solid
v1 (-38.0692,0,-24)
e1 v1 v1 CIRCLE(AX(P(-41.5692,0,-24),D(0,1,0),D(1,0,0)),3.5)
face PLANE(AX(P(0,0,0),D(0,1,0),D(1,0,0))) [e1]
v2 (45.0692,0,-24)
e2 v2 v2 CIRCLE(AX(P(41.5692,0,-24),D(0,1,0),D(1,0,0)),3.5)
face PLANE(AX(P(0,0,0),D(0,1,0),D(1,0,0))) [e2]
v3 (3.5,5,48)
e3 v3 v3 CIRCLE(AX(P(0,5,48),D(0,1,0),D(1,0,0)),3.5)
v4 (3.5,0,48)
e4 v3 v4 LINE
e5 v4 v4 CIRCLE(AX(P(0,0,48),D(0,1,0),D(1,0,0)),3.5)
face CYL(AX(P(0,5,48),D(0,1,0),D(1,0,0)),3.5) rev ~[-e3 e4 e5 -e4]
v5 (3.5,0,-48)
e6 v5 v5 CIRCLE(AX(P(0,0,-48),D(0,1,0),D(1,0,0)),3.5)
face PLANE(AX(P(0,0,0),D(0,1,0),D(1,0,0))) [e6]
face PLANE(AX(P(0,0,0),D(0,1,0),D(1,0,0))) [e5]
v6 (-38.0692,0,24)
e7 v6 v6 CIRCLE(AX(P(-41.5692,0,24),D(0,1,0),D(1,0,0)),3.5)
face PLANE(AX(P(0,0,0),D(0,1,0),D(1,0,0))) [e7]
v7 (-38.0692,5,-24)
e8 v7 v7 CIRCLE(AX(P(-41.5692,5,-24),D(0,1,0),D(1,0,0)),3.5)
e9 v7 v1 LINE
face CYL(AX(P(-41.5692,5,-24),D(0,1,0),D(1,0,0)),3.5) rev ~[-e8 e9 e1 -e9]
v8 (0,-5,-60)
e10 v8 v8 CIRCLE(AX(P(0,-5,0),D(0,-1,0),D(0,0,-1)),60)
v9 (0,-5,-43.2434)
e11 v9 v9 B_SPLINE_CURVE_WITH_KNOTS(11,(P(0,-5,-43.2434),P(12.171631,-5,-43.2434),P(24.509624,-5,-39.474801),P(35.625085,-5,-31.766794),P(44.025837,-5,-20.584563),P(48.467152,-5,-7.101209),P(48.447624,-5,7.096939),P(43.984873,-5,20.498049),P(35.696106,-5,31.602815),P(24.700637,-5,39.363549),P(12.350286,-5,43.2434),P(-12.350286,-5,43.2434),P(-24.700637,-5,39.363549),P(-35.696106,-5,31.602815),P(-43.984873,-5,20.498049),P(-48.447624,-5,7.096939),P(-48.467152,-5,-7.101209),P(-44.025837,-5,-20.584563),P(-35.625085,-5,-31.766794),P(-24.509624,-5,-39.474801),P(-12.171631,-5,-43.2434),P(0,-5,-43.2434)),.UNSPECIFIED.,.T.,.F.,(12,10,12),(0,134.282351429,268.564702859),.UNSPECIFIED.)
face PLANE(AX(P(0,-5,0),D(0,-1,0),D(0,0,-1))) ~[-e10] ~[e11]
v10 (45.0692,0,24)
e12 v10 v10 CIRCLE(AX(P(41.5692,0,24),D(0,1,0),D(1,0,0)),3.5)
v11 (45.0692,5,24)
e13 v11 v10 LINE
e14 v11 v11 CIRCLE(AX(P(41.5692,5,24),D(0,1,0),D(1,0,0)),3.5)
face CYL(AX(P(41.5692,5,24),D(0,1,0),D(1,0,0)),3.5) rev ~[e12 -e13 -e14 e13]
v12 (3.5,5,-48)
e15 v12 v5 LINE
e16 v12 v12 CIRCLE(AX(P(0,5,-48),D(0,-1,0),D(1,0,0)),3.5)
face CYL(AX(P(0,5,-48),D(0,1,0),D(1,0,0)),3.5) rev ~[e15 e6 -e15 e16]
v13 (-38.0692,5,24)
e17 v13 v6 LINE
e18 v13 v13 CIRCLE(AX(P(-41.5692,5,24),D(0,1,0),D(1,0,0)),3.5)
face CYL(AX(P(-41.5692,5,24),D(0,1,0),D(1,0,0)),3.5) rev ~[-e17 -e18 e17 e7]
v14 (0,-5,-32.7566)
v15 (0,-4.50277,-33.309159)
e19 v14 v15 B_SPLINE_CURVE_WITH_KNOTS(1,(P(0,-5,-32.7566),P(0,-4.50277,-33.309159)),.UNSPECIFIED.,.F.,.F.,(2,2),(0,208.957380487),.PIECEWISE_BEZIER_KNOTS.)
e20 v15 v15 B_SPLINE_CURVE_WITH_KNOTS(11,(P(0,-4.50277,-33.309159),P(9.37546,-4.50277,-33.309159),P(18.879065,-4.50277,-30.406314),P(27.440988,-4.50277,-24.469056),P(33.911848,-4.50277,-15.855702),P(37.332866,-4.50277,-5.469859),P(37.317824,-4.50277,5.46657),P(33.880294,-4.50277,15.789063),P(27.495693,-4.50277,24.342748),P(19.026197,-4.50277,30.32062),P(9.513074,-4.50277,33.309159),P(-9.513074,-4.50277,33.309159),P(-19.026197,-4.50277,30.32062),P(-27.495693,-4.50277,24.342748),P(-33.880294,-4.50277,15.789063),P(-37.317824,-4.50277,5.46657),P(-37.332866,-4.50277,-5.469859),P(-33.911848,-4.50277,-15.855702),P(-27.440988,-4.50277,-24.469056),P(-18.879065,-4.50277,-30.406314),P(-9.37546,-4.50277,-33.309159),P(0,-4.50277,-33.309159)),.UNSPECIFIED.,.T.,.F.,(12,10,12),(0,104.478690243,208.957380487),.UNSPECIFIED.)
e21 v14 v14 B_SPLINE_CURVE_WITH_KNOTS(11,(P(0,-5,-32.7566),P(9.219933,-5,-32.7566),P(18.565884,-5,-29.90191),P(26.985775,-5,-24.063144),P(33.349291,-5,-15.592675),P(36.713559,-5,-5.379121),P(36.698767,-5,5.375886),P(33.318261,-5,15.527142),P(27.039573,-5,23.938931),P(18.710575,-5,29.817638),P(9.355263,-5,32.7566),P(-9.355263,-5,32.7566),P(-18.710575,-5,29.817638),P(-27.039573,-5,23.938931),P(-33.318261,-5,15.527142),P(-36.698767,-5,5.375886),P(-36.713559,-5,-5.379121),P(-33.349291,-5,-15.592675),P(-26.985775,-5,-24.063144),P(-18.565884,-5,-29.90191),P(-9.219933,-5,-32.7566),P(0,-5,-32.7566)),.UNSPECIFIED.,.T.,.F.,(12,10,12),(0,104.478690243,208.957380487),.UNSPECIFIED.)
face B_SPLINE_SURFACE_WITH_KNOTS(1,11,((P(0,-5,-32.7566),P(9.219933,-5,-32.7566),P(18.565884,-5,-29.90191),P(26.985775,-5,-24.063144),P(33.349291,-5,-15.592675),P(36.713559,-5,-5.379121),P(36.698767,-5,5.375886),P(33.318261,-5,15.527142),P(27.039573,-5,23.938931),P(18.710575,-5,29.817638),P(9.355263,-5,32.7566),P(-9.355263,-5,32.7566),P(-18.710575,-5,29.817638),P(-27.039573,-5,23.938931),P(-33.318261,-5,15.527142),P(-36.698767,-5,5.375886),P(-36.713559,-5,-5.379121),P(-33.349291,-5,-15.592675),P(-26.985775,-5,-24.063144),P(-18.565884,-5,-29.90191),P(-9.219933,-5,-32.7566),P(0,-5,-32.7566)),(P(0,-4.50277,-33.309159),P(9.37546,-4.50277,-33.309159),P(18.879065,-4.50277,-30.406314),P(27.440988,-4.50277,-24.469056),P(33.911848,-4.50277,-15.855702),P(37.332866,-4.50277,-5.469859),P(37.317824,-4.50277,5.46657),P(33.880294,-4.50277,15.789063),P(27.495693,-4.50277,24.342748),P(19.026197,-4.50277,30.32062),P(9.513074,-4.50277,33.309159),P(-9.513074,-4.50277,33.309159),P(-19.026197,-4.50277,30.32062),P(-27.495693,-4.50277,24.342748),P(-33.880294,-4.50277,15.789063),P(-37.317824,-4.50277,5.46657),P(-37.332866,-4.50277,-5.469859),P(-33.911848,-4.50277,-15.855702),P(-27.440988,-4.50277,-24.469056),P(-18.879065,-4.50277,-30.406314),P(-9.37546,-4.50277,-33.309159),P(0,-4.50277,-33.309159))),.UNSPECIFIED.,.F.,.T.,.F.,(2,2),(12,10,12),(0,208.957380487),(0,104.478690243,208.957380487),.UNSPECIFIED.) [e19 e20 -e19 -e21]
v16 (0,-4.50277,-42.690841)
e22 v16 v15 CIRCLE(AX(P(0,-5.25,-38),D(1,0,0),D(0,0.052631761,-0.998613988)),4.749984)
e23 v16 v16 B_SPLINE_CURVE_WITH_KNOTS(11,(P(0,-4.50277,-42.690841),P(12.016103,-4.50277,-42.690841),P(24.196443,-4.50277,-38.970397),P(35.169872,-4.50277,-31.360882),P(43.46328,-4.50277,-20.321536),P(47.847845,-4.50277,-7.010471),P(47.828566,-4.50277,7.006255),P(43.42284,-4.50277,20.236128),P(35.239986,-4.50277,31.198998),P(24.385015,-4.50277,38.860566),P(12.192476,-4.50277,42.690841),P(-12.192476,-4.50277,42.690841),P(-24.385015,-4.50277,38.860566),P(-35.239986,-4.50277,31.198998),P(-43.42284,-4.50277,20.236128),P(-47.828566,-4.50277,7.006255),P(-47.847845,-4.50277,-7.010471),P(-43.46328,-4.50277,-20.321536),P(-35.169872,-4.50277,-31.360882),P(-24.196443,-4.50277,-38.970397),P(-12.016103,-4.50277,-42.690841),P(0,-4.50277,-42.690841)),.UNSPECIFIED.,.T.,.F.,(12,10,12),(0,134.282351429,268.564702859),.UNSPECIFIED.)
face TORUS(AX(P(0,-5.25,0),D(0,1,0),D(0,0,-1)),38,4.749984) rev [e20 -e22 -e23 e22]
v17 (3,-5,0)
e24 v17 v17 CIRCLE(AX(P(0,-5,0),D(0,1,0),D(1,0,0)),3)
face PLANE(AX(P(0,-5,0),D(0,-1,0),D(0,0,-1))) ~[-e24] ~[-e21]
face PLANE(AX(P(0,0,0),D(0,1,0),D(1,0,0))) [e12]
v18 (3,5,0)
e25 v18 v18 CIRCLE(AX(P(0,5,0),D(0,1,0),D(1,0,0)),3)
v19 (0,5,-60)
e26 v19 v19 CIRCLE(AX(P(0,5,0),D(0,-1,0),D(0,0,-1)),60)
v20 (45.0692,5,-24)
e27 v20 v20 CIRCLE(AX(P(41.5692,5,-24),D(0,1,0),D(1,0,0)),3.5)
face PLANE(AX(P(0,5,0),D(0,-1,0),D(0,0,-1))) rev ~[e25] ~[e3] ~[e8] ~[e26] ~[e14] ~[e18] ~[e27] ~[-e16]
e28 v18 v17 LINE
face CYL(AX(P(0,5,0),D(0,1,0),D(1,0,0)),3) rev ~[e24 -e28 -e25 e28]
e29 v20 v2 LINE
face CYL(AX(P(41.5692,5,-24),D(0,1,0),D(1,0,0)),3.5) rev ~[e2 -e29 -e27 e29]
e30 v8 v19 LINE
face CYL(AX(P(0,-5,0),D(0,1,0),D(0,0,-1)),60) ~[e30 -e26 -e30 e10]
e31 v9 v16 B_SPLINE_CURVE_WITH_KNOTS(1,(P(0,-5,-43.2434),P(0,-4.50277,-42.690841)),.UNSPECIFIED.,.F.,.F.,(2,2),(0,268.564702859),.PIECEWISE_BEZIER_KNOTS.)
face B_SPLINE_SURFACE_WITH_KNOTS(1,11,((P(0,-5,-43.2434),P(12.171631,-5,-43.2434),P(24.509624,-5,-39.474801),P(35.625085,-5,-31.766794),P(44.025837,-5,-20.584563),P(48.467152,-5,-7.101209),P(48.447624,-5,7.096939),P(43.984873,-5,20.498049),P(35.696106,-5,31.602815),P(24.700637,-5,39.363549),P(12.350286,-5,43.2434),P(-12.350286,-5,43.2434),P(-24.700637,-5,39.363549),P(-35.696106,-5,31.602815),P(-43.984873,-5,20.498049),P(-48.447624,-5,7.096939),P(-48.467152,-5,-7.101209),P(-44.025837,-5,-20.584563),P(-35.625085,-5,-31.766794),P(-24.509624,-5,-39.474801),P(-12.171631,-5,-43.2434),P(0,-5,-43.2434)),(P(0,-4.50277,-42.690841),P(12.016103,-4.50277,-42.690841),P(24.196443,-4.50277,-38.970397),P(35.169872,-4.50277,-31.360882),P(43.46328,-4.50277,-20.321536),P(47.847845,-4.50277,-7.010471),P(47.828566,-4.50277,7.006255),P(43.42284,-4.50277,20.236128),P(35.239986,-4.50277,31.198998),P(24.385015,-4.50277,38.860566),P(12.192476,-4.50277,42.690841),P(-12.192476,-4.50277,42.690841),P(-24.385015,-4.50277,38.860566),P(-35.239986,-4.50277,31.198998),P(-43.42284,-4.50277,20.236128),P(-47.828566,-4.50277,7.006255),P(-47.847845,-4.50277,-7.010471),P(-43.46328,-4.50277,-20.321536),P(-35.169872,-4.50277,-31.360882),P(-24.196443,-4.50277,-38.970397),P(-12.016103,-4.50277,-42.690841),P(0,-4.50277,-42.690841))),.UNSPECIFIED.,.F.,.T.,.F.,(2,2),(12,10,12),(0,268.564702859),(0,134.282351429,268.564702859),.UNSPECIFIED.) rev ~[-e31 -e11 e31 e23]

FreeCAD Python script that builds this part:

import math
import FreeCAD as App
import Part
import Sketcher
Q = App.Units.Quantity


def edges_at(feature, points):
    """Names of the edges that pass closest to the given points."""
    edges = feature.Shape.Edges
    near = lambda p: min(range(len(edges)), key=lambda i: edges[i].distToShape(Part.Vertex(*p))[0])
    return sorted({f"Edge{near(p) + 1}" for p in points})

doc = App.newDocument("Part")
params = doc.addObject("Spreadsheet::Sheet", "Params")
for row, (alias, value) in enumerate([
    ("sketch1_width", "10 mm"),
    ("sketch1_height", "60 mm"),
    ("sketch1_radius", "4.75 mm"),
    ("revolution_angle", "360 deg"),
    ("sketch2_diameter", "7 mm"),
    ("pocket1_length", "5 mm"),
    ("sketch3_diameter", "6 mm"),
    ("pocket2_length", "10 mm"),
    ("chamfer_size", "0.5 mm"),
], start=1):
    params.set(f"A{row}", alias)
    params.set(f"B{row}", "=" + value)
    params.setAlias(f"B{row}", alias)

body = doc.addObject("PartDesign::Body", "Body")

sketch1 = body.newObject("Sketcher::SketchObject", "Sketch")
sketch1.AttachmentSupport = (doc.getObject("YZ_Plane"), [""])
sketch1.MapMode = "FlatFace"
sketch1.addGeometry(Part.LineSegment(App.Vector(5, -60, 0), App.Vector(5, 0, 0)), False)
sketch1.addGeometry(Part.LineSegment(App.Vector(5, 0, 0), App.Vector(-5, 0, 0)), False)
sketch1.addGeometry(Part.LineSegment(App.Vector(-5, 0, 0), App.Vector(-5, -33.2566, 0)), False)
sketch1.addGeometry(Part.ArcOfCircle(Part.Circle(App.Vector(-5.25, -38, 0), App.Vector(0, 0, 1), 4.749984), math.radians(-86.983028), math.radians(86.983028)), False)
sketch1.addGeometry(Part.LineSegment(App.Vector(-5, -42.7434, 0), App.Vector(-5, -60, 0)), False)
sketch1.addGeometry(Part.LineSegment(App.Vector(-5, -60, 0), App.Vector(5, -60, 0)), False)
sketch1.addConstraint(Sketcher.Constraint("Coincident", 0, 2, 1, 1))
sketch1.addConstraint(Sketcher.Constraint("Coincident", 1, 2, 2, 1))
sketch1.addConstraint(Sketcher.Constraint("Coincident", 2, 2, 3, 2))
sketch1.addConstraint(Sketcher.Constraint("Coincident", 3, 1, 4, 1))
sketch1.addConstraint(Sketcher.Constraint("Coincident", 4, 2, 5, 1))
sketch1.addConstraint(Sketcher.Constraint("Coincident", 5, 2, 0, 1))
sketch1.addConstraint(Sketcher.Constraint("Vertical", 0))
sketch1.addConstraint(Sketcher.Constraint("Horizontal", 1))
sketch1.addConstraint(Sketcher.Constraint("Vertical", 2))
sketch1.addConstraint(Sketcher.Constraint("Vertical", 4))
sketch1.addConstraint(Sketcher.Constraint("Horizontal", 5))
sketch1.addConstraint(Sketcher.Constraint("Symmetric", 0, 2, 1, 2, -1, 1))
sketch1.addConstraint(Sketcher.Constraint("Vertical", 2, 2, 3, 1))
sketch1.addConstraint(Sketcher.Constraint("DistanceX", 1, 2, 1, 1, Q("10 mm")))
sketch1.addConstraint(Sketcher.Constraint("DistanceY", 0, 1, 0, 2, Q("60 mm")))
sketch1.addConstraint(Sketcher.Constraint("Radius", 3, Q("4.75 mm")))
sketch1.addConstraint(Sketcher.Constraint("DistanceY", 3, 3, -1, 1, Q("38 mm")))
sketch1.addConstraint(Sketcher.Constraint("DistanceX", 3, 3, -1, 1, Q("5.25 mm")))
sketch1.setExpression("Constraints[13]", "Params.sketch1_width")
sketch1.setExpression("Constraints[14]", "Params.sketch1_height")
sketch1.setExpression("Constraints[15]", "Params.sketch1_radius")
revolution = body.newObject("PartDesign::Revolution", "Revolution")
revolution.Profile = sketch1
revolution.ReferenceAxis = (sketch1, ["H_Axis"])
revolution.setExpression("Angle", "Params.revolution_angle")

sketch2 = body.newObject("Sketcher::SketchObject", "Sketch001")
sketch2.AttachmentSupport = (doc.getObject("XZ_Plane"), [""])
sketch2.MapMode = "FlatFace"
sketch2.AttachmentOffset = App.Placement(App.Vector(0, 0, -5), App.Rotation())
sketch2.addGeometry(Part.Circle(App.Vector(0, -48, 0), App.Vector(0, 0, 1), 3.5), False)
sketch2.addGeometry(Part.Circle(App.Vector(-41.5692, -24, 0), App.Vector(0, 0, 1), 3.5), False)
sketch2.addGeometry(Part.Circle(App.Vector(-41.5692, 24, 0), App.Vector(0, 0, 1), 3.5), False)
sketch2.addGeometry(Part.Circle(App.Vector(0, 48, 0), App.Vector(0, 0, 1), 3.5), False)
sketch2.addGeometry(Part.Circle(App.Vector(41.5692, 24, 0), App.Vector(0, 0, 1), 3.5), False)
sketch2.addGeometry(Part.Circle(App.Vector(41.5692, -24, 0), App.Vector(0, 0, 1), 3.5), False)
sketch2.addConstraint(Sketcher.Constraint("Equal", 0, 1))
sketch2.addConstraint(Sketcher.Constraint("Equal", 1, 2))
sketch2.addConstraint(Sketcher.Constraint("Equal", 2, 3))
sketch2.addConstraint(Sketcher.Constraint("Equal", 3, 4))
sketch2.addConstraint(Sketcher.Constraint("Equal", 4, 5))
sketch2.addConstraint(Sketcher.Constraint("Symmetric", 0, 3, 3, 3, -1, 1))
sketch2.addConstraint(Sketcher.Constraint("Symmetric", 1, 3, 4, 3, -1, 1))
sketch2.addConstraint(Sketcher.Constraint("Symmetric", 2, 3, 5, 3, -1, 1))
sketch2.addConstraint(Sketcher.Constraint("Symmetric", 2, 3, 4, 3, -2))
sketch2.addConstraint(Sketcher.Constraint("PointOnObject", 0, 3, -2))
sketch2.addConstraint(Sketcher.Constraint("Diameter", 0, Q("7 mm")))
sketch2.addConstraint(Sketcher.Constraint("DistanceY", 0, 3, -1, 1, Q("48 mm")))
sketch2.addConstraint(Sketcher.Constraint("DistanceY", 1, 3, 2, 3, Q("48 mm")))
sketch2.addConstraint(Sketcher.Constraint("DistanceX", 1, 3, -1, 1, Q("41.5692 mm")))
sketch2.setExpression("Constraints[10]", "Params.sketch2_diameter")
pocket1 = body.newObject("PartDesign::Pocket", "Pocket")
pocket1.Profile = sketch2
pocket1.setExpression("Length", "Params.pocket1_length")
pocket1.Reversed = True

sketch3 = body.newObject("Sketcher::SketchObject", "Sketch002")
sketch3.AttachmentSupport = (doc.getObject("XZ_Plane"), [""])
sketch3.MapMode = "FlatFace"
sketch3.AttachmentOffset = App.Placement(App.Vector(0, 0, -5), App.Rotation())
sketch3.addGeometry(Part.Circle(App.Vector(0, 0, 0), App.Vector(0, 0, 1), 3), False)
sketch3.addConstraint(Sketcher.Constraint("Coincident", 0, 3, -1, 1))
sketch3.addConstraint(Sketcher.Constraint("Diameter", 0, Q("6 mm")))
sketch3.setExpression("Constraints[1]", "Params.sketch3_diameter")
pocket2 = body.newObject("PartDesign::Pocket", "Pocket001")
pocket2.Profile = sketch3
pocket2.setExpression("Length", "Params.pocket2_length")
pocket2.Reversed = True
doc.recompute()

chamfer = body.newObject("PartDesign::Chamfer", "Chamfer")
chamfer.Base = (pocket2, edges_at(pocket2, [(0, -5, 42.743), (0, -5, 33.257)]))
chamfer.setExpression("Size", "Params.chamfer_size")

doc.recompute()
